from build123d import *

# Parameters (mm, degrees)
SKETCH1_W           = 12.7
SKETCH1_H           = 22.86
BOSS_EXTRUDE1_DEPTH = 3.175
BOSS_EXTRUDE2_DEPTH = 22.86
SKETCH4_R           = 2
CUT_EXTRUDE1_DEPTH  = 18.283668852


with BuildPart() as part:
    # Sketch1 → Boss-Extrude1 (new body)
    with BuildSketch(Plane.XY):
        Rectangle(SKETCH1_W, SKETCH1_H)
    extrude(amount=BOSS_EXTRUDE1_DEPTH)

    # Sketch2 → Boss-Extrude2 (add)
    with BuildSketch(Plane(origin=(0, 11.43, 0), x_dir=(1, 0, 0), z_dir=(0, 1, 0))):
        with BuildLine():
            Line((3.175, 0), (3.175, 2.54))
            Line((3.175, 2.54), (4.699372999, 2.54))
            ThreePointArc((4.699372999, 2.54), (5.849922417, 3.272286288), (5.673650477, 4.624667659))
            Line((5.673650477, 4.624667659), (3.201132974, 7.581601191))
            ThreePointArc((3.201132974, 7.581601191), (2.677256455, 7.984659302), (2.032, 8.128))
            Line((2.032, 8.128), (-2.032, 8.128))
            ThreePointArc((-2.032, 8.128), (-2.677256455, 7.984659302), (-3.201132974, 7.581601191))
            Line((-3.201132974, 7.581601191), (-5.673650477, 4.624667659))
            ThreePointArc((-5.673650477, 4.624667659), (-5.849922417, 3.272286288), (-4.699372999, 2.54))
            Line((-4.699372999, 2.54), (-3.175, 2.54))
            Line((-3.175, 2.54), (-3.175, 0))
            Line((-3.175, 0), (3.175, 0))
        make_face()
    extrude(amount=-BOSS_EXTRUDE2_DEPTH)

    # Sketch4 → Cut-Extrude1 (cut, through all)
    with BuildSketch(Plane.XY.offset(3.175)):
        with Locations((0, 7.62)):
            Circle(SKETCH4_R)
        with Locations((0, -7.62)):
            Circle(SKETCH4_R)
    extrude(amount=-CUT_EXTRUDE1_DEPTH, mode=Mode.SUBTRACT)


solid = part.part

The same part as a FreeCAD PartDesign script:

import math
import FreeCAD as App
import Part
import Sketcher
Q = App.Units.Quantity


def add_polygon(sketch, points):
    """Adds a closed chain of lines whose ends are joined by coincident constraints."""
    first, n = sketch.GeometryCount, len(points)
    for a, b in zip(points, points[1:] + points[:1]):
        sketch.addGeometry(Part.LineSegment(App.Vector(*a, 0), App.Vector(*b, 0)), False)
    for i in range(n):
        sketch.addConstraint(Sketcher.Constraint("Coincident", first + i, 2, first + (i + 1) % n, 1))

doc = App.newDocument("Part")
body = doc.addObject("PartDesign::Body", "Body")

# Sketch on XY plane
sketch1 = body.newObject("Sketcher::SketchObject", "Sketch")
sketch1.AttachmentSupport = (doc.getObject("XY_Plane"), [""])
sketch1.MapMode = "FlatFace"
add_polygon(sketch1, [(-6, 11), (-6, -11), (6, -11), (6, 11)])  # lines 0-3
sketch1.addConstraint([
    Sketcher.Constraint("Vertical", 0),
    Sketcher.Constraint("Horizontal", 1),
    Sketcher.Constraint("Vertical", 2),
    Sketcher.Constraint("Horizontal", 3),
    Sketcher.Constraint("Symmetric", 0, 2, 2, 2, -1, 1),
    Sketcher.Constraint("DistanceX", 1, 1, 1, 2, Q("0.5 in")),
    Sketcher.Constraint("DistanceY", 0, 2, 0, 1, Q("0.9 in")),
])
pad1 = body.newObject("PartDesign::Pad", "Pad")
pad1.Profile = sketch1
pad1.Length = Q("0.125 in")

# Sketch on XZ plane
sketch2 = body.newObject("Sketcher::SketchObject", "Sketch001")
sketch2.AttachmentSupport = (doc.getObject("XZ_Plane"), [""])
sketch2.MapMode = "FlatFace"
sketch2.AttachmentOffset = App.Placement(App.Vector(0, 0, -0.45 * 25.4), App.Rotation())
sketch2.addGeometry([
    Part.LineSegment(App.Vector(3.2, 0, 0), App.Vector(3.2, -2.5, 0)),  # 0
    Part.LineSegment(App.Vector(3.2, -2.5, 0), App.Vector(4.7, -2.5, 0)),  # 1
    Part.ArcOfCircle(Part.Circle(App.Vector(4.7, -3.8, 0), App.Vector(0, 0, 1), 1.3), math.radians(-40), math.radians(90)),  # 2
    Part.LineSegment(App.Vector(5.7, -4.6, 0), App.Vector(3.2, -7.6, 0)),  # 3
    Part.ArcOfCircle(Part.Circle(App.Vector(2, -6.6, 0), App.Vector(0, 0, 1), 1.5), math.radians(-90), math.radians(-40)),  # 4
    Part.LineSegment(App.Vector(2, -8.1, 0), App.Vector(-2, -8.1, 0)),  # 5
    Part.ArcOfCircle(Part.Circle(App.Vector(-2, -6.6, 0), App.Vector(0, 0, 1), 1.5), math.radians(-140), math.radians(-90)),  # 6
    Part.LineSegment(App.Vector(-3.2, -7.6, 0), App.Vector(-5.7, -4.6, 0)),  # 7
    Part.ArcOfCircle(Part.Circle(App.Vector(-4.7, -3.8, 0), App.Vector(0, 0, 1), 1.3), math.radians(90), math.radians(220)),  # 8
    Part.LineSegment(App.Vector(-4.7, -2.5, 0), App.Vector(-3.2, -2.5, 0)),  # 9
    Part.LineSegment(App.Vector(-3.2, -2.5, 0), App.Vector(-3.2, 0, 0)),  # 10
    Part.LineSegment(App.Vector(-3.2, 0, 0), App.Vector(3.2, 0, 0)),  # 11
], False)
sketch2.addConstraint([
    Sketcher.Constraint("Coincident", 0, 2, 1, 1),
    Sketcher.Constraint("Tangent", 1, 2, 2, 2),
    Sketcher.Constraint("Tangent", 2, 1, 3, 1),
    Sketcher.Constraint("Tangent", 3, 2, 4, 2),
    Sketcher.Constraint("Tangent", 4, 1, 5, 1),
    Sketcher.Constraint("Tangent", 5, 2, 6, 2),
    Sketcher.Constraint("Tangent", 6, 1, 7, 1),
    Sketcher.Constraint("Tangent", 7, 2, 8, 2),
    Sketcher.Constraint("Tangent", 8, 1, 9, 1),
    Sketcher.Constraint("Coincident", 9, 2, 10, 1),
    Sketcher.Constraint("Coincident", 10, 2, 11, 1),
    Sketcher.Constraint("Coincident", 11, 2, 0, 1),
    Sketcher.Constraint("Vertical", 0),
    Sketcher.Constraint("Horizontal", 1),
    Sketcher.Constraint("Horizontal", 5),
    Sketcher.Constraint("Horizontal", 9),
    Sketcher.Constraint("Vertical", 10),
    Sketcher.Constraint("Horizontal", 11),
    Sketcher.Constraint("Equal", 4, 6),
    Sketcher.Constraint("Equal", 2, 8),
    Sketcher.Constraint("Symmetric", 10, 2, 11, 2, -1, 1),
    Sketcher.Constraint("Symmetric", 2, 3, 8, 3, -2),
    Sketcher.Constraint("Horizontal", 3, 2, 6, 1),
    Sketcher.Constraint("Radius", 2, Q("0.05 in")),
    Sketcher.Constraint("Radius", 4, Q("0.06 in")),
    Sketcher.Constraint("DistanceY", 0, 2, 0, 1, Q("0.1 in")),
    Sketcher.Constraint("DistanceX", 5, 2, 5, 1, Q("0.16 in")),
    Sketcher.Constraint("DistanceX", 11, 1, 11, 2, Q("0.25 in")),
    Sketcher.Constraint("DistanceY", 4, 3, -1, 1, Q("0.26 in")),
    Sketcher.Constraint("DistanceY", 3, 2, -1, 1, 7.581601),
])
pad2 = body.newObject("PartDesign::Pad", "Pad001")
pad2.Profile = sketch2
pad2.Length = Q("0.9 in")

# Sketch on XY plane
sketch3 = body.newObject("Sketcher::SketchObject", "Sketch002")
sketch3.AttachmentSupport = (doc.getObject("XY_Plane"), [""])
sketch3.MapMode = "FlatFace"
sketch3.AttachmentOffset = App.Placement(App.Vector(0, 0, 0.125 * 25.4), App.Rotation())
sketch3.addGeometry([
    Part.Circle(App.Vector(0, 7.6, 0), App.Vector(0, 0, 1), 2),
    Part.Circle(App.Vector(0, -7.6, 0), App.Vector(0, 0, 1), 2),
], False)
sketch3.addConstraint([
    Sketcher.Constraint("Equal", 0, 1),
    Sketcher.Constraint("Symmetric", 0, 3, 1, 3, -1, 1),
    Sketcher.Constraint("PointOnObject", 0, 3, -2),
    Sketcher.Constraint("DistanceY", -1, 1, 0, 3, Q("0.3 in")),
    Sketcher.Constraint("Diameter", 0, 4.0),
])
pocket1 = body.newObject("PartDesign::Pocket", "Pocket")
pocket1.Profile = sketch3
pocket1.Type = "ThroughAll"

doc.recompute()
